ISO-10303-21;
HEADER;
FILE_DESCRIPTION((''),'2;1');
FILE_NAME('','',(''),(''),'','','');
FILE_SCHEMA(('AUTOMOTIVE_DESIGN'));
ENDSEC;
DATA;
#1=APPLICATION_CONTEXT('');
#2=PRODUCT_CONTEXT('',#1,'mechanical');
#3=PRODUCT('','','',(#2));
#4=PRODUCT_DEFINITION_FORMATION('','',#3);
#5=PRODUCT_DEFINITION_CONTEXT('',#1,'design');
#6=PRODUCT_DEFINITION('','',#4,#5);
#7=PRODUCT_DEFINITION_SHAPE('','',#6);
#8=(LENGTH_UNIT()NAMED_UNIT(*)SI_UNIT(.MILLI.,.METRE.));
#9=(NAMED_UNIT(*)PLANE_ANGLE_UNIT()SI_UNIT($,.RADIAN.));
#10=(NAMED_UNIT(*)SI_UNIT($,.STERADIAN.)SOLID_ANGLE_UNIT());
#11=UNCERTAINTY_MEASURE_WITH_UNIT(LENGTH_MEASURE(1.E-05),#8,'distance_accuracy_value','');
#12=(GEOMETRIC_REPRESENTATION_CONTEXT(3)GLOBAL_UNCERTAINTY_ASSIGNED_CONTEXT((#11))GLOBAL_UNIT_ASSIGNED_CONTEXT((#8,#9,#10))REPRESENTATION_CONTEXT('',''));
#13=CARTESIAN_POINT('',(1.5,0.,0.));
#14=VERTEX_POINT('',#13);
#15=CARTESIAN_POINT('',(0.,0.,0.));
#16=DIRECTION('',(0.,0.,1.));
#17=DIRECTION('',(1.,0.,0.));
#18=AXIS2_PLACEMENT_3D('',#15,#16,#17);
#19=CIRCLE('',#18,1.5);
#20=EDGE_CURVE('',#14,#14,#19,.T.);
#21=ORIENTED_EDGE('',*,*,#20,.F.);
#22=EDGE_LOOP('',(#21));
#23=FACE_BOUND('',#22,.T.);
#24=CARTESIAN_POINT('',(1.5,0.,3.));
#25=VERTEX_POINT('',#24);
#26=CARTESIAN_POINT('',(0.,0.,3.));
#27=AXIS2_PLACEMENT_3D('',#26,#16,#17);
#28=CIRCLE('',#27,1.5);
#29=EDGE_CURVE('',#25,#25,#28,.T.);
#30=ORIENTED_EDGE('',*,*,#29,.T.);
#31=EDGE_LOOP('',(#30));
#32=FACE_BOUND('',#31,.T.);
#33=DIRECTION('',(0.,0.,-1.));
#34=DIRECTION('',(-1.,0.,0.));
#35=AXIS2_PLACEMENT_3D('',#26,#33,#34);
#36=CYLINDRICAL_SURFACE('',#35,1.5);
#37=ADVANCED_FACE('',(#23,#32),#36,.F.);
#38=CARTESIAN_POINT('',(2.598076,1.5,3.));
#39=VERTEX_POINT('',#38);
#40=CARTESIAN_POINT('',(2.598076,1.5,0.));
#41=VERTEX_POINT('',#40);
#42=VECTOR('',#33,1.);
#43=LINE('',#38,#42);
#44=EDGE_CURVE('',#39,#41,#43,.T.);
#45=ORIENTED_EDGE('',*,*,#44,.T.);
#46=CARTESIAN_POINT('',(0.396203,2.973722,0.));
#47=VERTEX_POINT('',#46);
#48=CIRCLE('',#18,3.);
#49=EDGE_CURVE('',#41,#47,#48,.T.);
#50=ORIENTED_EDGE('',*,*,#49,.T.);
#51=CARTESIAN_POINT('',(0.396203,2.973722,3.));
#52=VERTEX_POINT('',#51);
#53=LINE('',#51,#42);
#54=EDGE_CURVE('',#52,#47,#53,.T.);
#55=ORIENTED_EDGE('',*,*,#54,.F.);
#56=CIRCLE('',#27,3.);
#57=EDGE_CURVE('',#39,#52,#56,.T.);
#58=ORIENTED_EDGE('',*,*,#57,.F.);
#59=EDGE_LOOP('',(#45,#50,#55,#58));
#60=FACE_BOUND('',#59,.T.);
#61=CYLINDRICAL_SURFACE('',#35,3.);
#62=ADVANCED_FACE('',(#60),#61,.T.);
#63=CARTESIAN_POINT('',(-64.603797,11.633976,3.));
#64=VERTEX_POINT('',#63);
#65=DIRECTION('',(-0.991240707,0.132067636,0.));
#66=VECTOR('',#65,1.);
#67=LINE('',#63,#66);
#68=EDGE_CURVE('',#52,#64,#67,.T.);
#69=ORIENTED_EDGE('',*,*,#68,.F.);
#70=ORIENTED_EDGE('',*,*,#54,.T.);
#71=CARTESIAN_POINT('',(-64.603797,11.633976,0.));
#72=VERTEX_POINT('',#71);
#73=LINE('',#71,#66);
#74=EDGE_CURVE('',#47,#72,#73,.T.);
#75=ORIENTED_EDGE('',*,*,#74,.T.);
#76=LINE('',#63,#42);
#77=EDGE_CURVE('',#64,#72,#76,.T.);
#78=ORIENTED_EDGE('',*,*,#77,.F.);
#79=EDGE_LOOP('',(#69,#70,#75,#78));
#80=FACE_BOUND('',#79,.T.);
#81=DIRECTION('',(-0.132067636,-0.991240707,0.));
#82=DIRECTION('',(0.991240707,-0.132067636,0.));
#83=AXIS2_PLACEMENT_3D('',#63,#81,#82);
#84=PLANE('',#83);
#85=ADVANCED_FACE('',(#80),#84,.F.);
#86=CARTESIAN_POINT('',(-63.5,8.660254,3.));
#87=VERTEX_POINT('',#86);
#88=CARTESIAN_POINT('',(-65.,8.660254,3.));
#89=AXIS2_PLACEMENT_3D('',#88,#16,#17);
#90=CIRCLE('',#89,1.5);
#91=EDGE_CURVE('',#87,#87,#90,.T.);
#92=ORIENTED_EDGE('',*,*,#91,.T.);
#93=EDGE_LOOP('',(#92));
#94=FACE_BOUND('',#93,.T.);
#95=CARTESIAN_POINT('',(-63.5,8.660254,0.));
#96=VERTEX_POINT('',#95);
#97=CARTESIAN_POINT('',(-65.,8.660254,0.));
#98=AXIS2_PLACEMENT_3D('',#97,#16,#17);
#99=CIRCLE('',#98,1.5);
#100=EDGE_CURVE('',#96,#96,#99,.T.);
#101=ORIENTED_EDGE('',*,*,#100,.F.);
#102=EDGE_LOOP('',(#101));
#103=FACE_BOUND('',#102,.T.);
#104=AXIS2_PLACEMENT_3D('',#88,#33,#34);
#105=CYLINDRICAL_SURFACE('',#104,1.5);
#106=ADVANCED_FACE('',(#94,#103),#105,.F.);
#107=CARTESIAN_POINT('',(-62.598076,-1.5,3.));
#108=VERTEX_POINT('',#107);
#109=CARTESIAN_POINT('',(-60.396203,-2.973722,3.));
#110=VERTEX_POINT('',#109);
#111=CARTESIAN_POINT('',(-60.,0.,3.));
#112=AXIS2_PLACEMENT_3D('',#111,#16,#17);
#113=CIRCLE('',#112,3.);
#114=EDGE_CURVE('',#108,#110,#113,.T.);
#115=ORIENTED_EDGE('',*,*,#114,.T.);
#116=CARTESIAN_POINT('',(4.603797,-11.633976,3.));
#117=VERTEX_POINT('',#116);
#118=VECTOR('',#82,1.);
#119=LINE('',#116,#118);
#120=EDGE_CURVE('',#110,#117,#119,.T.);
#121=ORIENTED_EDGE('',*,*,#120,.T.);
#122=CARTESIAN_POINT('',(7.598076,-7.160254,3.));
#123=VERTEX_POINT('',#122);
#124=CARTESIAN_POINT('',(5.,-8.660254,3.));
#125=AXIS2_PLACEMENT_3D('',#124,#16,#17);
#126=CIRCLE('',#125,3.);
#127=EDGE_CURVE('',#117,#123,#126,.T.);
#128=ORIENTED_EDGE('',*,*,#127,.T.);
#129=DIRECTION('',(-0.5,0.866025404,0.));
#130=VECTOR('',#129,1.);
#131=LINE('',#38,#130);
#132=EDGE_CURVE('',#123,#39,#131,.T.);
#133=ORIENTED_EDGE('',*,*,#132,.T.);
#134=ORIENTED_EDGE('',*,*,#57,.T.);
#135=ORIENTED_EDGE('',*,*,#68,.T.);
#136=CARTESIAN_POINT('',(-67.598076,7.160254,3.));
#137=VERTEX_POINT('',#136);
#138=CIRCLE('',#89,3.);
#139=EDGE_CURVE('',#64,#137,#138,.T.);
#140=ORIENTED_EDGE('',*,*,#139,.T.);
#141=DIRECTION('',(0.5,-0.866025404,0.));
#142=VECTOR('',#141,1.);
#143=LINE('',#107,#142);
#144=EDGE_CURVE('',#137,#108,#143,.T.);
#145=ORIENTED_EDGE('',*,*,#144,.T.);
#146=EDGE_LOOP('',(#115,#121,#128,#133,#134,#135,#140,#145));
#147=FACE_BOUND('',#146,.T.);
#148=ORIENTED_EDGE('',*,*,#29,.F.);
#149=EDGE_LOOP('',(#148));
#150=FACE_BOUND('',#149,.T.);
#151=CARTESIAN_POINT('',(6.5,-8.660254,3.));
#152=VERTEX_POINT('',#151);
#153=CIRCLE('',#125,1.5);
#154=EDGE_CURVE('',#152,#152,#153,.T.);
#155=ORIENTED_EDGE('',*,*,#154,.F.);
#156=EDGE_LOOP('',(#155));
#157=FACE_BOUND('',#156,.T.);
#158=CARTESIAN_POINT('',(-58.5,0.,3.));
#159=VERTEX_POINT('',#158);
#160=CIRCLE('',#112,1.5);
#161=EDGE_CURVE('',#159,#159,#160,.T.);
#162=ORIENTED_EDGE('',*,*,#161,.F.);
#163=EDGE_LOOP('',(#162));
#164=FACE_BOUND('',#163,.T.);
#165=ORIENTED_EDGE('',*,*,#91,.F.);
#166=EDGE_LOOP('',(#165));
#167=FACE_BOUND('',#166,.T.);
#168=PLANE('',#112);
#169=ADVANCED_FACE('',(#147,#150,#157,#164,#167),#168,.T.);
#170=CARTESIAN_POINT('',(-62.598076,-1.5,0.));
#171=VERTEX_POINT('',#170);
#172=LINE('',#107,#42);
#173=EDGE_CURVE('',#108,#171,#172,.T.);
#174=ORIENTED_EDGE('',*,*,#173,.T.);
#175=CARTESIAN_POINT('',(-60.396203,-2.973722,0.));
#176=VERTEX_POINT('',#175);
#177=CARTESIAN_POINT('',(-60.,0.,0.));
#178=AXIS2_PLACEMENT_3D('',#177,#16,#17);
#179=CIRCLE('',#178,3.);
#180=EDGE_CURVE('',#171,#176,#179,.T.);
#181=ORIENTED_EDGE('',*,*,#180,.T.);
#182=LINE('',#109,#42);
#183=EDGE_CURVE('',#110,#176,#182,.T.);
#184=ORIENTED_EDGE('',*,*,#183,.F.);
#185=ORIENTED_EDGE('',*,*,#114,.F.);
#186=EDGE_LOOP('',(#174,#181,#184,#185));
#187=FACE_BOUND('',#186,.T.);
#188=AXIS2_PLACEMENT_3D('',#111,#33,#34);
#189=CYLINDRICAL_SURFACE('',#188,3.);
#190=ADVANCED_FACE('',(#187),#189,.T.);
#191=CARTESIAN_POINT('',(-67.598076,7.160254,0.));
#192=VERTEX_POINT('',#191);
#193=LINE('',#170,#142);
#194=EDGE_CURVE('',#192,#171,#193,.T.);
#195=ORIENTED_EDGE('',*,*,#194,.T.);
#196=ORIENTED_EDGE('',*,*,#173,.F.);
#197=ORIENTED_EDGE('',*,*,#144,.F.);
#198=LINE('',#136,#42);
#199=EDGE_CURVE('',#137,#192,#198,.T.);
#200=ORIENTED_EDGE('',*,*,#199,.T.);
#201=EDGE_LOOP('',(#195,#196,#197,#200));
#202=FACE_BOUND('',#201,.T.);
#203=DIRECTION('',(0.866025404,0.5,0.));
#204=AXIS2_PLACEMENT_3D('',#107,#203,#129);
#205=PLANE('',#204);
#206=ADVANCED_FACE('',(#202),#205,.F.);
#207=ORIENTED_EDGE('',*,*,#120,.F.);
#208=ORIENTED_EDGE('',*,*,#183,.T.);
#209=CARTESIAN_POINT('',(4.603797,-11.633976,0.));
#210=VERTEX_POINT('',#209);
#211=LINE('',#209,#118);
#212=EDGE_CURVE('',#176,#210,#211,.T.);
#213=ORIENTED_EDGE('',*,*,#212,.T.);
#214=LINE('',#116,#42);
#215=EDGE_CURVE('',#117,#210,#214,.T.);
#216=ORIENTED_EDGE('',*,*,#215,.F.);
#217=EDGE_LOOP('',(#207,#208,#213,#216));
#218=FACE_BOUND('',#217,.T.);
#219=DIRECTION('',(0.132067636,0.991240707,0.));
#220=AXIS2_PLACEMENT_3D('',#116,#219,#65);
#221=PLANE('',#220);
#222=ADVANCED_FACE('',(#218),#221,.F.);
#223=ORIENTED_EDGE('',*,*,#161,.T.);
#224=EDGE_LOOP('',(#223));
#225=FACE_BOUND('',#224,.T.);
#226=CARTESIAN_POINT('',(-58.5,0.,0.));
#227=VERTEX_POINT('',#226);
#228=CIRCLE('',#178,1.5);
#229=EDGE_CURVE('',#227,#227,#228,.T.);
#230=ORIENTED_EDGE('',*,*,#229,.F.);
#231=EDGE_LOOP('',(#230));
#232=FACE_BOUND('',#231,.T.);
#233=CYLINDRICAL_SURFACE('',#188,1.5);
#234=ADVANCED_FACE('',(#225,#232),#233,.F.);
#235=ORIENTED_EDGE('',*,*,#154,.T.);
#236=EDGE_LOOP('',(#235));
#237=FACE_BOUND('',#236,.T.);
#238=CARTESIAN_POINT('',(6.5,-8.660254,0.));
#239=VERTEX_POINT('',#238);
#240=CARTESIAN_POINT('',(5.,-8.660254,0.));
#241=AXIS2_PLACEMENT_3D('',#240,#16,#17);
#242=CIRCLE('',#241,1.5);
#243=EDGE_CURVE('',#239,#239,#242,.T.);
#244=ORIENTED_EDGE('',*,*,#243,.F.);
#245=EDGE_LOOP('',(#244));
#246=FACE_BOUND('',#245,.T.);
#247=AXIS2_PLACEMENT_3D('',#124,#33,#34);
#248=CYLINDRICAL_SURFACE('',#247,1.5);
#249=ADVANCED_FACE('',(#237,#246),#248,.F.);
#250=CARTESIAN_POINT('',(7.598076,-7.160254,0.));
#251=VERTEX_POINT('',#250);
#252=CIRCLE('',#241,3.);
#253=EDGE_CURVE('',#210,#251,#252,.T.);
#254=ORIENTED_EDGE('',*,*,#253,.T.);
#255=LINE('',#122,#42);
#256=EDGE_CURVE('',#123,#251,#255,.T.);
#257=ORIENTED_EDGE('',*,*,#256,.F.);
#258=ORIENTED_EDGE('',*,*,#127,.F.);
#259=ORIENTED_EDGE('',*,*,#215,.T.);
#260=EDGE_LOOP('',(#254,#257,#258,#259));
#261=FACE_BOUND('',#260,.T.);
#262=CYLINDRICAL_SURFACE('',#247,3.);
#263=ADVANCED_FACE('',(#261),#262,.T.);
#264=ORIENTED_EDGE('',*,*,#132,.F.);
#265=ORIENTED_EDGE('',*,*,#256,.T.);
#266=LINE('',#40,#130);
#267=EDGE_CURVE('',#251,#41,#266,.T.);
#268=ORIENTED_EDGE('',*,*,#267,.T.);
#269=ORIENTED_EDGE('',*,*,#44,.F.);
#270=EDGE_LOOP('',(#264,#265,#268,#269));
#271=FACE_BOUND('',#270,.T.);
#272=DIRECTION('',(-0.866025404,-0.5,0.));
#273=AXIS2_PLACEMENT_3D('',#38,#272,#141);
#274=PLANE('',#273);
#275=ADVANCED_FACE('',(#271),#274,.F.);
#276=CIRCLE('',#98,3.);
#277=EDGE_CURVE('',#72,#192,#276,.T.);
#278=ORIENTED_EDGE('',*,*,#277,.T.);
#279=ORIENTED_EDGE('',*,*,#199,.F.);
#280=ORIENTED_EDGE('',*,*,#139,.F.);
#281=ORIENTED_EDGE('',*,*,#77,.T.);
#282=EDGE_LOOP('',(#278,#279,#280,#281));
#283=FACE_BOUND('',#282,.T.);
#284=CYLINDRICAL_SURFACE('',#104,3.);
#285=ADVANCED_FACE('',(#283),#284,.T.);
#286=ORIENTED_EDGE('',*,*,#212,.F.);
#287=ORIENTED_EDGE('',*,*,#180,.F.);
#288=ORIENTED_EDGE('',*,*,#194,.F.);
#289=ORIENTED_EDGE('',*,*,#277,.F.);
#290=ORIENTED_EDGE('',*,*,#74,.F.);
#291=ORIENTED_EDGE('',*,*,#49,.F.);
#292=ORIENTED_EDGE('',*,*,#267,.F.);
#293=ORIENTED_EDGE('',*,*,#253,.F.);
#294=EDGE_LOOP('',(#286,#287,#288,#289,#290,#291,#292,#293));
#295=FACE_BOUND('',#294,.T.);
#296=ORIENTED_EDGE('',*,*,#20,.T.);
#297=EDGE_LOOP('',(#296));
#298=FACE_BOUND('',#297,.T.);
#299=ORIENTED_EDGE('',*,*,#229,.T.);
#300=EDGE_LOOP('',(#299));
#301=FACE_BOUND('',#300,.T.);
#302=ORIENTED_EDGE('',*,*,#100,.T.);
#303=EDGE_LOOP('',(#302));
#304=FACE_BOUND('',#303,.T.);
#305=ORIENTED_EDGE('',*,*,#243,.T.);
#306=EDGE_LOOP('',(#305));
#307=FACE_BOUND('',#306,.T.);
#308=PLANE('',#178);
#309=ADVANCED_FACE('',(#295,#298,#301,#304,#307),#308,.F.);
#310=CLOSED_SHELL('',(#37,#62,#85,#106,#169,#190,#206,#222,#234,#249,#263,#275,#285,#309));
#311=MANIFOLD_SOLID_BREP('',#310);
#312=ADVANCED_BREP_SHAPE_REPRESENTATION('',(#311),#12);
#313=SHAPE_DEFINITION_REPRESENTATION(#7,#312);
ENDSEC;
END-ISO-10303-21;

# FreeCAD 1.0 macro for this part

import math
import FreeCAD as App
import Part
import Sketcher

V = App.Vector
Q = App.Units.Quantity

doc = App.newDocument("Part")
body = doc.addObject("PartDesign::Body", "Body")

# Sketch on XY plane
sketch1 = body.newObject("Sketcher::SketchObject", "Sketch")
sketch1.AttachmentSupport = (doc.getObject("XY_Plane"), [""])
sketch1.MapMode = "FlatFace"
sketch1.addGeometry(Part.LineSegment(V(0.4, 3, 0), V(-64.6, 11.6, 0)), False)
sketch1.addGeometry(Part.ArcOfCircle(Part.Circle(V(-65, 8.7, 0), V(0, 0, 1), 3), math.radians(82), math.radians(210)), False)
sketch1.addGeometry(Part.LineSegment(V(-67.6, 7.2, 0), V(-62.6, -1.5, 0)), False)
sketch1.addGeometry(Part.ArcOfCircle(Part.Circle(V(-60, 0, 0), V(0, 0, 1), 3), math.radians(-150), math.radians(-98)), False)
sketch1.addGeometry(Part.LineSegment(V(-60.4, -3, 0), V(4.6, -11.6, 0)), False)
sketch1.addGeometry(Part.ArcOfCircle(Part.Circle(V(5, -8.7, 0), V(0, 0, 1), 3), math.radians(-98), math.radians(30)), False)
sketch1.addGeometry(Part.LineSegment(V(7.6, -7.2, 0), V(2.6, 1.5, 0)), False)
sketch1.addGeometry(Part.ArcOfCircle(Part.Circle(V(0, 0, 0), V(0, 0, 1), 3), math.radians(30), math.radians(82)), False)
sketch1.addGeometry(Part.Circle(V(5, -8.7, 0), V(0, 0, 1), 1.5), False)
sketch1.addGeometry(Part.Circle(V(0, 0, 0), V(0, 0, 1), 1.5), False)
sketch1.addGeometry(Part.Circle(V(-60, 0, 0), V(0, 0, 1), 1.5), False)
sketch1.addGeometry(Part.Circle(V(-65, 8.7, 0), V(0, 0, 1), 1.5), False)
sketch1.addConstraint(Sketcher.Constraint("Tangent", 0, 2, 1, 1))
sketch1.addConstraint(Sketcher.Constraint("Tangent", 1, 2, 2, 1))
sketch1.addConstraint(Sketcher.Constraint("Tangent", 2, 2, 3, 1))
sketch1.addConstraint(Sketcher.Constraint("Tangent", 3, 2, 4, 1))
sketch1.addConstraint(Sketcher.Constraint("Tangent", 4, 2, 5, 1))
sketch1.addConstraint(Sketcher.Constraint("Tangent", 5, 2, 6, 1))
sketch1.addConstraint(Sketcher.Constraint("Tangent", 6, 2, 7, 1))
sketch1.addConstraint(Sketcher.Constraint("Tangent", 7, 2, 0, 1))
sketch1.addConstraint(Sketcher.Constraint("Coincident", 7, 3, -1, 1))
sketch1.addConstraint(Sketcher.Constraint("Coincident", 9, 3, -1, 1))
sketch1.addConstraint(Sketcher.Constraint("Coincident", 8, 3, 5, 3))
sketch1.addConstraint(Sketcher.Constraint("Coincident", 10, 3, 3, 3))
sketch1.addConstraint(Sketcher.Constraint("Coincident", 11, 3, 1, 3))
sketch1.addConstraint(Sketcher.Constraint("Equal", 1, 3))
sketch1.addConstraint(Sketcher.Constraint("Equal", 3, 5))
sketch1.addConstraint(Sketcher.Constraint("Equal", 5, 7))
sketch1.addConstraint(Sketcher.Constraint("Equal", 8, 9))
sketch1.addConstraint(Sketcher.Constraint("Equal", 9, 10))
sketch1.addConstraint(Sketcher.Constraint("Equal", 10, 11))
sketch1.addConstraint(Sketcher.Constraint("PointOnObject", 3, 3, -1))
sketch1.addConstraint(Sketcher.Constraint("Parallel", 0, 4))
sketch1.addConstraint(Sketcher.Constraint("Parallel", 2, 6))
sketch1.addConstraint(Sketcher.Constraint("Diameter", 8, 3.0))
sketch1.addConstraint(Sketcher.Constraint("Radius", 1, 3.0))
sketch1.addConstraint(Sketcher.Constraint("Angle", 2, Q("-60 deg")))
sketch1.addConstraint(Sketcher.Constraint("Distance", 2, 10.0))
sketch1.addConstraint(Sketcher.Constraint("DistanceX", 1, 3, -1, 1, 65.0))
pad1 = body.newObject("PartDesign::Pad", "Pad")
pad1.Profile = sketch1
pad1.Length = 3

doc.recompute()
